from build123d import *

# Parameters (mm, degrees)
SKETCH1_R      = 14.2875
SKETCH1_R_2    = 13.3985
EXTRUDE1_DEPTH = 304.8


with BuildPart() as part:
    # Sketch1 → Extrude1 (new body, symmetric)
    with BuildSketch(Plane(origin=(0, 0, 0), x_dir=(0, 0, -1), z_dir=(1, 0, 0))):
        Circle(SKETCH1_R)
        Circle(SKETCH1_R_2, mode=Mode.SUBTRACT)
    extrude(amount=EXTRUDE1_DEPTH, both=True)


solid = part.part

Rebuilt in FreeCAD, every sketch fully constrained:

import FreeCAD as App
import Part
import Sketcher
from FreeCAD import Vector
Q = App.Units.Quantity

doc = App.newDocument("Part")
body = doc.addObject("PartDesign::Body", "Body")

# Sketch on YZ plane
sketch1 = body.newObject("Sketcher::SketchObject", "Sketch")
sketch1.AttachmentSupport = (doc.getObject("YZ_Plane"), [""])
sketch1.MapMode = "FlatFace"
sketch1.addGeometry(Part.Circle(Vector(0, 0, 0), Vector(0, 0, 1), 14), False)
sketch1.addGeometry(Part.Circle(Vector(0, 0, 0), Vector(0, 0, 1), 13), False)
sketch1.addConstraint(Sketcher.Constraint("Coincident", 0, 3, -1, 1))
sketch1.addConstraint(Sketcher.Constraint("Coincident", 1, 3, -1, 1))
sketch1.addConstraint(Sketcher.Constraint("Diameter", 0, Q("1.125 in")))
sketch1.addConstraint(Sketcher.Constraint("Diameter", 1, Q("1.055 in")))
pad1 = body.newObject("PartDesign::Pad", "Pad")
pad1.Profile = sketch1
pad1.Length = Q("24 in")
pad1.Midplane = True

doc.recompute()
